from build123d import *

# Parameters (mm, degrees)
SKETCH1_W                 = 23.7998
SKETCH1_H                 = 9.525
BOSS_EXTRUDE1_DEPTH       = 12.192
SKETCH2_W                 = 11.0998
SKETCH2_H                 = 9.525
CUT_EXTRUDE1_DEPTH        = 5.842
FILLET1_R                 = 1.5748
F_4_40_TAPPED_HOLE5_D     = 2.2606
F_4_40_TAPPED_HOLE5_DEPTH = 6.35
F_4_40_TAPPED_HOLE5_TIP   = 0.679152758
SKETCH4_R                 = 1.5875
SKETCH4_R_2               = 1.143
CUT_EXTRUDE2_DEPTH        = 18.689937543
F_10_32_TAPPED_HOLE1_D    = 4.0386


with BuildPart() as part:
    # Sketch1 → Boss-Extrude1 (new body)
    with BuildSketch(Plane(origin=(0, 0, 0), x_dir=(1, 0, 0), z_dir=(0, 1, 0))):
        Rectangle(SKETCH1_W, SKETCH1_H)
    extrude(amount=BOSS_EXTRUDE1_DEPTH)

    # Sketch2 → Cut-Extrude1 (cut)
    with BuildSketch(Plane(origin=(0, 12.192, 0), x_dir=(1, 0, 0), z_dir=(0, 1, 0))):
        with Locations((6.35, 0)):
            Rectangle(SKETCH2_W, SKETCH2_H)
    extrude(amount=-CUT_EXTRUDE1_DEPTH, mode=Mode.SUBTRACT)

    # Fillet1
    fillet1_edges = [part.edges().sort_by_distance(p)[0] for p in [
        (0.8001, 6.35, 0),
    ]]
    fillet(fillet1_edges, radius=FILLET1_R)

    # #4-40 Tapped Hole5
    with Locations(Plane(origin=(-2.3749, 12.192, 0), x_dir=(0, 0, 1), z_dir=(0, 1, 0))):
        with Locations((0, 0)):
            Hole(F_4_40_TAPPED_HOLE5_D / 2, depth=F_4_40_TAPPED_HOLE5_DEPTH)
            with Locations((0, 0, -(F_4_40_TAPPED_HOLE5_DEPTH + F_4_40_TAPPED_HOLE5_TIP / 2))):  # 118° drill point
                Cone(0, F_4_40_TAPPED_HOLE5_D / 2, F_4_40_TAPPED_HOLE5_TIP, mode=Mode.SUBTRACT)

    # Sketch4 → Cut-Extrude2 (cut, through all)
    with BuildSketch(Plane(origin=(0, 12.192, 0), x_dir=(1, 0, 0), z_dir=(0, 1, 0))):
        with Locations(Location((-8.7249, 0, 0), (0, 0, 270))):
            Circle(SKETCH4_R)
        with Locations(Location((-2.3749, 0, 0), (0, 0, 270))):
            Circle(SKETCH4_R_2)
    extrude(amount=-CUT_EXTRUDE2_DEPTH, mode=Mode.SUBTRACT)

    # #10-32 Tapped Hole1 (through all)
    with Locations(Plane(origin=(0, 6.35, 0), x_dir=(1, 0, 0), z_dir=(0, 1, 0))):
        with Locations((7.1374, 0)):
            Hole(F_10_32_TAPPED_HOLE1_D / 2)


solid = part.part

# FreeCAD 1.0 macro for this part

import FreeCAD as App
import Part
import Sketcher

V = App.Vector
Q = App.Units.Quantity


def edges_at(feature, points):
    """Names of the edges that pass closest to the given points."""
    edges = feature.Shape.Edges
    near = lambda p: min(range(len(edges)), key=lambda i: edges[i].distToShape(Part.Vertex(*p))[0])
    return sorted({f"Edge{near(p) + 1}" for p in points})


def add_polygon(sketch, points):
    """Adds a closed chain of lines whose ends are joined by coincident constraints."""
    first, n = sketch.GeometryCount, len(points)
    for a, b in zip(points, points[1:] + points[:1]):
        sketch.addGeometry(Part.LineSegment(App.Vector(*a, 0), App.Vector(*b, 0)), False)
    for i in range(n):
        sketch.addConstraint(Sketcher.Constraint("Coincident", first + i, 2, first + (i + 1) % n, 1))

doc = App.newDocument("Part")
params = doc.addObject("Spreadsheet::Sheet", "Params")
for row, (alias, value) in enumerate([
    ("sketch1_width", "0.937 in"),
    ("sketch1_height", "0.375 in"),
    ("pad1_length", "0.48 in"),
    ("sketch2_width", "0.437 in"),
    ("sketch2_height", "0.375 in"),
    ("pocket1_length", "0.23 in"),
    ("fillet_radius", "0.062 in"),
    ("sketch3_diameter", "0.089 in"),
    ("hole_diameter", "0.089 in"),
    ("hole_depth", "0.25 in"),
    ("sketch4_diameter", "0.09 in"),
    ("sketch4_diameter2", "0.125 in"),
    ("sketch5_diameter", "0.159 in"),
    ("hole2_diameter", "0.159 in"),
], start=1):
    params.set(f"A{row}", alias)
    params.set(f"B{row}", "=" + value)
    params.setAlias(f"B{row}", alias)

body = doc.addObject("PartDesign::Body", "Body")

# Sketch on XZ plane
sketch1 = body.newObject("Sketcher::SketchObject", "Sketch")
sketch1.AttachmentSupport = (doc.getObject("XZ_Plane"), [""])
sketch1.MapMode = "FlatFace"
add_polygon(sketch1, [(-11.8999, -4.7625), (-11.8999, 4.7625), (11.8999, 4.7625), (11.8999, -4.7625)])  # lines 0-3
sketch1.addConstraint([
    Sketcher.Constraint("Vertical", 0),
    Sketcher.Constraint("Horizontal", 1),
    Sketcher.Constraint("Vertical", 2),
    Sketcher.Constraint("Horizontal", 3),
    Sketcher.Constraint("Symmetric", 0, 2, 2, 2, -1, 1),
    Sketcher.Constraint("DistanceX", 1, 1, 1, 2, Q("0.937 in")),
    Sketcher.Constraint("DistanceY", 0, 1, 0, 2, Q("0.375 in")),
])
sketch1.setExpression("Constraints[9]", "Params.sketch1_width")
sketch1.setExpression("Constraints[10]", "Params.sketch1_height")
pad1 = body.newObject("PartDesign::Pad", "Pad")
pad1.Profile = sketch1
pad1.setExpression("Length", "Params.pad1_length")
pad1.Reversed = True

# Sketch on XZ plane
sketch2 = body.newObject("Sketcher::SketchObject", "Sketch001")
sketch2.AttachmentSupport = (doc.getObject("XZ_Plane"), [""])
sketch2.MapMode = "FlatFace"
sketch2.AttachmentOffset = App.Placement(V(0, 0, -0.48 * 25.4), App.Rotation())
add_polygon(sketch2, [(0.8001, -4.7625), (0.8001, 4.7625), (11.8999, 4.7625), (11.8999, -4.7625)])  # lines 0-3
sketch2.addConstraint([
    Sketcher.Constraint("Vertical", 0),
    Sketcher.Constraint("Horizontal", 1),
    Sketcher.Constraint("Vertical", 2),
    Sketcher.Constraint("Horizontal", 3),
    Sketcher.Constraint("DistanceX", 1, 1, 1, 2, Q("0.437 in")),
    Sketcher.Constraint("DistanceY", 0, 1, 0, 2, Q("0.375 in")),
    Sketcher.Constraint("DistanceY", -1, 1, 0, 2, Q("0.1875 in")),
    Sketcher.Constraint("DistanceX", -1, 1, 0, 2, Q("0.0315 in")),
])
sketch2.setExpression("Constraints[8]", "Params.sketch2_width")
sketch2.setExpression("Constraints[9]", "Params.sketch2_height")
pocket1 = body.newObject("PartDesign::Pocket", "Pocket")
pocket1.Profile = sketch2
pocket1.setExpression("Length", "Params.pocket1_length")
pocket1.Reversed = True
doc.recompute()

fillet = body.newObject("PartDesign::Fillet", "Fillet")
fillet.Base = (pocket1, edges_at(pocket1, [(0.8, 6.35, 0)]))
fillet.setExpression("Radius", "Params.fillet_radius")

# Sketch on XZ plane
sketch3 = body.newObject("Sketcher::SketchObject", "Sketch002")
sketch3.AttachmentSupport = (doc.getObject("XZ_Plane"), [""])
sketch3.MapMode = "FlatFace"
sketch3.AttachmentOffset = App.Placement(V(0, 0, -0.48 * 25.4), App.Rotation())
sketch3.addGeometry(Part.Circle(V(-2.3749, 0, 0), V(0, 0, 1), 1.1303), False)
sketch3.addConstraint([
    Sketcher.Constraint("PointOnObject", 0, 3, -1),
    Sketcher.Constraint("Diameter", 0, Q("0.089 in")),
    Sketcher.Constraint("DistanceX", 0, 3, -1, 1, Q("0.0935 in")),
])
sketch3.setExpression("Constraints[1]", "Params.sketch3_diameter")
doc.recompute()
hole = body.newObject("PartDesign::Hole", "Hole")
hole.Profile = sketch3
hole.ThreadType = "None"
hole.setExpression("Diameter", "Params.hole_diameter")
hole.DepthType = "Dimension"
hole.setExpression("Depth", "Params.hole_depth")
hole.DrillPoint = "Angled"
hole.DrillPointAngle = 118
hole.Reversed = True

# Sketch on XZ plane
sketch4 = body.newObject("Sketcher::SketchObject", "Sketch003")
sketch4.AttachmentSupport = (doc.getObject("XZ_Plane"), [""])
sketch4.MapMode = "FlatFace"
sketch4.AttachmentOffset = App.Placement(V(0, 0, -0.48 * 25.4), App.Rotation())
sketch4.addGeometry([
    Part.Circle(V(-8.7249, 0, 0), V(0, 0, 1), 1.5875),
    Part.Circle(V(-2.3749, 0, 0), V(0, 0, 1), 1.143),
], False)
sketch4.addConstraint([
    Sketcher.Constraint("PointOnObject", 0, 3, -1),
    Sketcher.Constraint("PointOnObject", 1, 3, -1),
    Sketcher.Constraint("Diameter", 1, Q("0.09 in")),
    Sketcher.Constraint("Diameter", 0, Q("0.125 in")),
    Sketcher.Constraint("DistanceX", 0, 3, 1, 3, Q("0.25 in")),
    Sketcher.Constraint("DistanceX", 0, 3, -1, 1, Q("0.3435 in")),
])
sketch4.setExpression("Constraints[2]", "Params.sketch4_diameter")
sketch4.setExpression("Constraints[3]", "Params.sketch4_diameter2")
pocket2 = body.newObject("PartDesign::Pocket", "Pocket001")
pocket2.Profile = sketch4
pocket2.Type = "ThroughAll"
pocket2.Reversed = True

# Sketch on XZ plane
sketch5 = body.newObject("Sketcher::SketchObject", "Sketch004")
sketch5.AttachmentSupport = (doc.getObject("XZ_Plane"), [""])
sketch5.MapMode = "FlatFace"
sketch5.AttachmentOffset = App.Placement(V(0, 0, -0.25 * 25.4), App.Rotation())
sketch5.addGeometry(Part.Circle(V(7.1374, 0, 0), V(0, 0, 1), 2.0193), False)
sketch5.addConstraint([
    Sketcher.Constraint("PointOnObject", 0, 3, -1),
    Sketcher.Constraint("Diameter", 0, Q("0.159 in")),
    Sketcher.Constraint("DistanceX", -1, 1, 0, 3, Q("0.281 in")),
])
sketch5.setExpression("Constraints[1]", "Params.sketch5_diameter")
doc.recompute()
hole2 = body.newObject("PartDesign::Hole", "Hole001")
hole2.Profile = sketch5
hole2.ThreadType = "None"
hole2.setExpression("Diameter", "Params.hole2_diameter")
hole2.DepthType = "ThroughAll"
hole2.Reversed = True

doc.recompute()
